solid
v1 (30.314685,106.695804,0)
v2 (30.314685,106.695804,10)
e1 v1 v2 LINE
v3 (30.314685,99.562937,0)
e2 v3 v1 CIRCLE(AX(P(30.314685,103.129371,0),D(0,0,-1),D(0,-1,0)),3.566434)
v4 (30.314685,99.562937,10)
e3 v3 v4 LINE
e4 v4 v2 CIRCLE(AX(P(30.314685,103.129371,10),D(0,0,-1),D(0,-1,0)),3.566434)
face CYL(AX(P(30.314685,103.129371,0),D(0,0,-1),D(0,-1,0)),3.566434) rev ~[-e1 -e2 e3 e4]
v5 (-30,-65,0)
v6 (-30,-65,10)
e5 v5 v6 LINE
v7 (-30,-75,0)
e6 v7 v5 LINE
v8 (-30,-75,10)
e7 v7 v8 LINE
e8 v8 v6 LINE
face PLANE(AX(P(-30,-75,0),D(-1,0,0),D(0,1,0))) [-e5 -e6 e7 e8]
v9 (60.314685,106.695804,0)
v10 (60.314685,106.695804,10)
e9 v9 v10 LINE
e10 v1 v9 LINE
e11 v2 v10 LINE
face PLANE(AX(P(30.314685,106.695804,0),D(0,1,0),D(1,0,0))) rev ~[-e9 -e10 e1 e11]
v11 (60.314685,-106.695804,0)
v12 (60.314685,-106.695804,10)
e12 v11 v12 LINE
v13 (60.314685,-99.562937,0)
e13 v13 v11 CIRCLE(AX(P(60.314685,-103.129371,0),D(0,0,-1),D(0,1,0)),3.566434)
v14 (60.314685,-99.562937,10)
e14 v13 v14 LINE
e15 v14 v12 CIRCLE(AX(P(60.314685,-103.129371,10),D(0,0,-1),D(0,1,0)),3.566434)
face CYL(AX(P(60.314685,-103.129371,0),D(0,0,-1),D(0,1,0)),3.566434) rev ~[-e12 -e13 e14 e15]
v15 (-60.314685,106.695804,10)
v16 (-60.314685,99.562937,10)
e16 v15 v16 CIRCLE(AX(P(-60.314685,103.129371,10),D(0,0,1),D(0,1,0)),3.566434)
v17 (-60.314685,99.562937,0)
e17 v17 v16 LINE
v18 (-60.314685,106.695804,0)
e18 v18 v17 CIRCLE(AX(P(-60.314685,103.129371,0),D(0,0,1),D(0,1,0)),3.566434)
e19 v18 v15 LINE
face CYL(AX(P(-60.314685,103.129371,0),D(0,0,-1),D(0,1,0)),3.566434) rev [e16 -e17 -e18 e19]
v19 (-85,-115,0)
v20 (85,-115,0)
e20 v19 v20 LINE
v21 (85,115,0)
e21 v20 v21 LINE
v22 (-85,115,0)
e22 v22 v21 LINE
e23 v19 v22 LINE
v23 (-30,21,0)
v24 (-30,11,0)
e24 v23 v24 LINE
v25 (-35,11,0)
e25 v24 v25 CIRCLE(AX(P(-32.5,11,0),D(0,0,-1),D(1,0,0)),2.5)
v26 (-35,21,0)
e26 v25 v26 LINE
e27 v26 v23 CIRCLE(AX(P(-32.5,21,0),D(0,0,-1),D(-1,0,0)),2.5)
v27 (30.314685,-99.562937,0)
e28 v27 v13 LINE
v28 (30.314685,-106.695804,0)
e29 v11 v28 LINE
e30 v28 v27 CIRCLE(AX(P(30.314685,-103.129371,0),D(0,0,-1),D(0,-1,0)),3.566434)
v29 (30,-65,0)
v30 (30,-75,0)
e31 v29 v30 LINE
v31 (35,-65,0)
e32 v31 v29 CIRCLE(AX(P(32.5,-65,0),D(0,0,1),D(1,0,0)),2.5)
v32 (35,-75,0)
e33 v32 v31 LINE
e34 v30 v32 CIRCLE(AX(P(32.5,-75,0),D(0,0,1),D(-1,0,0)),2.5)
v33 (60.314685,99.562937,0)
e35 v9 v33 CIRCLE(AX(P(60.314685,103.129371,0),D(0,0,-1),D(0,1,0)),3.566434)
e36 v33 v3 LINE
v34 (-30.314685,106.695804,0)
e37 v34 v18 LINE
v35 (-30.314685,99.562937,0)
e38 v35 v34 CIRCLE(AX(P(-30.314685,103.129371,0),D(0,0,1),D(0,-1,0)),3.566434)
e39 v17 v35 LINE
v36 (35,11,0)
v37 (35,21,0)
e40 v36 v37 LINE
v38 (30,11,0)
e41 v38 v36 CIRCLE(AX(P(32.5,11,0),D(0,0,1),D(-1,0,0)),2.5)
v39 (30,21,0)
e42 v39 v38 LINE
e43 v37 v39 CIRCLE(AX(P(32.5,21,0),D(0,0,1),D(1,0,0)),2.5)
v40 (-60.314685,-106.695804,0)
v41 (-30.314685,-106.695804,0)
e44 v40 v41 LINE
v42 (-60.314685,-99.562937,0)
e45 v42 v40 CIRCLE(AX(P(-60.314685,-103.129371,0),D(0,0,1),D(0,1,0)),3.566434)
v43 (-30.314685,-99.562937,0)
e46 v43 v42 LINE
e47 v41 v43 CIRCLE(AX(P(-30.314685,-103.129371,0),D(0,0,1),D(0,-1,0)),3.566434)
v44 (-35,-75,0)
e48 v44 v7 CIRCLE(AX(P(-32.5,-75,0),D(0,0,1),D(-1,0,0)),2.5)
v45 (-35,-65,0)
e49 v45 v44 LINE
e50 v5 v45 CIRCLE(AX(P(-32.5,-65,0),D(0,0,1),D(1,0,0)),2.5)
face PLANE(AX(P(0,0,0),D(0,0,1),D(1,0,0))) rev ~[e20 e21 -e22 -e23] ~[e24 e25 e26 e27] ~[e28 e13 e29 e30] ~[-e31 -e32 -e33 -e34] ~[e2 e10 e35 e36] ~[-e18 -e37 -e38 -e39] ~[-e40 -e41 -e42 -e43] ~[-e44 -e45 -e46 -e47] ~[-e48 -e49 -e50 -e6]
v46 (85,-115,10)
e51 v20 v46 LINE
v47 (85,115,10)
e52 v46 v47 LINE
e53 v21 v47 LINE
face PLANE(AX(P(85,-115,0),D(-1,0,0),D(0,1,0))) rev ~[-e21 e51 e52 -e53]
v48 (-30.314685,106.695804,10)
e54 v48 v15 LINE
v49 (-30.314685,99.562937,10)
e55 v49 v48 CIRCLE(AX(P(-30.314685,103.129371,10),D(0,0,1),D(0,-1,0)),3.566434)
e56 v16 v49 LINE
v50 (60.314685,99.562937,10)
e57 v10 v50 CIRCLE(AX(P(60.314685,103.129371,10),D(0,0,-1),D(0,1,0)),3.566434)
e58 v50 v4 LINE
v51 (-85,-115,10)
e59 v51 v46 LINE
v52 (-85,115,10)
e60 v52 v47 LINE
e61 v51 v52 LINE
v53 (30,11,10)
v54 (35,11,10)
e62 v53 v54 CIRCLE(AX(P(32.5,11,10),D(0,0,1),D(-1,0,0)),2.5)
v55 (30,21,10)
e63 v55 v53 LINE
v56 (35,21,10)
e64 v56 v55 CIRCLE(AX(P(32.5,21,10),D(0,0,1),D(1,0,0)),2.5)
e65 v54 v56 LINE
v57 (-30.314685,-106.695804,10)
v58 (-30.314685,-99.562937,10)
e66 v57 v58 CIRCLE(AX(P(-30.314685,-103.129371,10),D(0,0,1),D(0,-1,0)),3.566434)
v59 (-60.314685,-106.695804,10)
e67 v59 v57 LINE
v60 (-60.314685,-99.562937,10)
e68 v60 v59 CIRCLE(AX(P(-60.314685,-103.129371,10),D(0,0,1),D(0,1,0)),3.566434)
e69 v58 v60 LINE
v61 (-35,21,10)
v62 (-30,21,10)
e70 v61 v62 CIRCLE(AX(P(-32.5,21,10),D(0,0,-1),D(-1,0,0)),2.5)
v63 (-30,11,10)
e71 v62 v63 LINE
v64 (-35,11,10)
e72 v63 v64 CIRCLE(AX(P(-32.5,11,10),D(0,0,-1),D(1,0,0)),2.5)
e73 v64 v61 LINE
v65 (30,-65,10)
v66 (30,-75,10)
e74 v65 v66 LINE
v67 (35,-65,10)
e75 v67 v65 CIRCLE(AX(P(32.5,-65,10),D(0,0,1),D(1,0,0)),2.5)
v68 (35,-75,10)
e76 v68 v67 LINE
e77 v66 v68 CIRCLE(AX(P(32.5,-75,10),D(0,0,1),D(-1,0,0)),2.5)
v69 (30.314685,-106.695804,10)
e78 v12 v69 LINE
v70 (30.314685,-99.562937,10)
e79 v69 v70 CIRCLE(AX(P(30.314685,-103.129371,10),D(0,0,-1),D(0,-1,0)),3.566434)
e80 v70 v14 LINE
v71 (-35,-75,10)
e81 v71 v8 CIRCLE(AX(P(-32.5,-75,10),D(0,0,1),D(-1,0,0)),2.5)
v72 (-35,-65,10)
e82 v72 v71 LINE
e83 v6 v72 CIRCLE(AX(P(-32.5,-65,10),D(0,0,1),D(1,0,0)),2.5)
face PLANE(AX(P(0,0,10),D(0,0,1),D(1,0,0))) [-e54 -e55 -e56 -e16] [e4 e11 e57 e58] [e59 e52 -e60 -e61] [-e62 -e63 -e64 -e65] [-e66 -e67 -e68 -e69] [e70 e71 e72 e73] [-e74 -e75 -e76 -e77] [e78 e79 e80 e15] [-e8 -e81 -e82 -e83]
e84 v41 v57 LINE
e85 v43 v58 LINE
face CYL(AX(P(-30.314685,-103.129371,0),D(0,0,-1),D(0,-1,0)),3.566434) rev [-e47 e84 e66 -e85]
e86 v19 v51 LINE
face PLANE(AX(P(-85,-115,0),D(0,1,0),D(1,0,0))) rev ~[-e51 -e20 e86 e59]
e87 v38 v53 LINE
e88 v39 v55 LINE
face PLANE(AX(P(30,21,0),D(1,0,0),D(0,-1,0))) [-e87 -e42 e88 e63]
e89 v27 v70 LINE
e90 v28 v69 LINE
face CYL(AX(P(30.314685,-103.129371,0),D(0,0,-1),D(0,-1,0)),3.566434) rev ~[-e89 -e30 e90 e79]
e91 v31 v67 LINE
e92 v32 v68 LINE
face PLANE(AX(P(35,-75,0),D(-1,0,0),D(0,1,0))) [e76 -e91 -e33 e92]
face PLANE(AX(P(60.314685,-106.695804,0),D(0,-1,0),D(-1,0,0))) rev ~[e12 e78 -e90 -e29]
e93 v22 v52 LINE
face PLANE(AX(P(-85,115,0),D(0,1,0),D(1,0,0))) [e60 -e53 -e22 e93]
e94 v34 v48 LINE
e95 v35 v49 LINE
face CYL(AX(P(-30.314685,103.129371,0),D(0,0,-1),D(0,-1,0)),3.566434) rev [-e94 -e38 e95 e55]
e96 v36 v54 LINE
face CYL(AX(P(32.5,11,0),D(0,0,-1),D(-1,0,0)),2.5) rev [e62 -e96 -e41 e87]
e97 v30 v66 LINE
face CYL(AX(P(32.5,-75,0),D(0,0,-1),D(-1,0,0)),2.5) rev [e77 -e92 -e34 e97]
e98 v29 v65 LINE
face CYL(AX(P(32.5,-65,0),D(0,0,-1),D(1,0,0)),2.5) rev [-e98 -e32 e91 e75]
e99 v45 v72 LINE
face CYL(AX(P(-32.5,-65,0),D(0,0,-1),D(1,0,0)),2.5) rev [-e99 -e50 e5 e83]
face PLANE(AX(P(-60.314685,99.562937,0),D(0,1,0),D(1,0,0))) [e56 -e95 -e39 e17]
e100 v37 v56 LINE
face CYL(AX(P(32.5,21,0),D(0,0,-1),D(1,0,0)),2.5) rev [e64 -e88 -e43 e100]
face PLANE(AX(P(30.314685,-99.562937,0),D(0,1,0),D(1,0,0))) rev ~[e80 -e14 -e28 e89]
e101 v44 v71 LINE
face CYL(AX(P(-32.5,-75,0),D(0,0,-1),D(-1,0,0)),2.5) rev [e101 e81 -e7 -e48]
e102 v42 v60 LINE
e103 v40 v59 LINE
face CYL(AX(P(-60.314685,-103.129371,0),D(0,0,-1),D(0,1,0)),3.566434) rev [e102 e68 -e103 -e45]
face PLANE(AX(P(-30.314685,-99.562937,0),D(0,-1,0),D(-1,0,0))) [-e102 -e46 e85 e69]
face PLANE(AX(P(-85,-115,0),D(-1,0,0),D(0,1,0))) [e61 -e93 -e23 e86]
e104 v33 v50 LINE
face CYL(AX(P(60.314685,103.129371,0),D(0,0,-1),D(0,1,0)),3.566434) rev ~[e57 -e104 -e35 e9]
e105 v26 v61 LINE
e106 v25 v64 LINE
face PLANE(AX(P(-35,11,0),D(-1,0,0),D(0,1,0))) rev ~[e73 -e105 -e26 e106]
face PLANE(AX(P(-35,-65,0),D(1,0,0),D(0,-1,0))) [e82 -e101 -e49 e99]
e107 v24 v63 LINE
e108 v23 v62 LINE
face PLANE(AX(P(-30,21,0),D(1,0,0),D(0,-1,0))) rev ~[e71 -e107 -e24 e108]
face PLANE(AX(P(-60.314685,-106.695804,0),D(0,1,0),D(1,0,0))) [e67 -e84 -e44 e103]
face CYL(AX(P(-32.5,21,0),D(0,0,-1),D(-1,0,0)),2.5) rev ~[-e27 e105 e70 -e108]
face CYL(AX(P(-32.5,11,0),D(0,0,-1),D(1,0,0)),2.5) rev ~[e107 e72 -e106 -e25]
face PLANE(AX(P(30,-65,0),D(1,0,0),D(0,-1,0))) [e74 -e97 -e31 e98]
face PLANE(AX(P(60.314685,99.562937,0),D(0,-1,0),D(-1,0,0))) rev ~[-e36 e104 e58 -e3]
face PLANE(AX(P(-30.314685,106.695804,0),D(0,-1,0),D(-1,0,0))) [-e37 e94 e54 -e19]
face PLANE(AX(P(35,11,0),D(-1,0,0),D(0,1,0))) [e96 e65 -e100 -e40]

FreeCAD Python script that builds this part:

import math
import FreeCAD as App
import Part
import Sketcher

V = App.Vector


def add_polygon(sketch, points):
    """Adds a closed chain of lines whose ends are joined by coincident constraints."""
    first, n = sketch.GeometryCount, len(points)
    for a, b in zip(points, points[1:] + points[:1]):
        sketch.addGeometry(Part.LineSegment(App.Vector(*a, 0), App.Vector(*b, 0)), False)
    for i in range(n):
        sketch.addConstraint(Sketcher.Constraint("Coincident", first + i, 2, first + (i + 1) % n, 1))

doc = App.newDocument("Part")
body = doc.addObject("PartDesign::Body", "Body")

# Sketch on XY plane
sketch1 = body.newObject("Sketcher::SketchObject", "Sketch")
sketch1.AttachmentSupport = (doc.getObject("XY_Plane"), [""])
sketch1.MapMode = "FlatFace"
add_polygon(sketch1, [(-85, 115), (-85, -115), (85, -115), (85, 115)])  # lines 0-3
sketch1.addGeometry(Part.LineSegment(V(-60.3, -99.6, 0), V(-30.3, -99.6, 0)), False)  # 4
sketch1.addGeometry(Part.ArcOfCircle(Part.Circle(V(-30.3, -103.1, 0), V(0, 0, 1), 3.6), math.radians(-90), math.radians(90)), False)  # 5
sketch1.addGeometry(Part.LineSegment(V(-30.3, -106.7, 0), V(-60.3, -106.7, 0)), False)  # 6
sketch1.addGeometry(Part.ArcOfCircle(Part.Circle(V(-60.3, -103.1, 0), V(0, 0, 1), 3.6), math.radians(90), math.radians(270)), False)  # 7
sketch1.addGeometry(Part.LineSegment(V(-30, -65, 0), V(-30, -75, 0)), False)  # 8
sketch1.addGeometry(Part.ArcOfCircle(Part.Circle(V(-32.5, -75, 0), V(0, 0, 1), 2.5), math.radians(180), math.radians(360)), False)  # 9
sketch1.addGeometry(Part.LineSegment(V(-35, -75, 0), V(-35, -65, 0)), False)  # 10
sketch1.addGeometry(Part.ArcOfCircle(Part.Circle(V(-32.5, -65, 0), V(0, 0, 1), 2.5), math.radians(0), math.radians(180)), False)  # 11
sketch1.addGeometry(Part.ArcOfCircle(Part.Circle(V(30.3, -103.1, 0), V(0, 0, 1), 3.6), math.radians(90), math.radians(270)), False)  # 12
sketch1.addGeometry(Part.LineSegment(V(30.3, -99.6, 0), V(60.3, -99.6, 0)), False)  # 13
sketch1.addGeometry(Part.ArcOfCircle(Part.Circle(V(60.3, -103.1, 0), V(0, 0, 1), 3.6), math.radians(-90), math.radians(90)), False)  # 14
sketch1.addGeometry(Part.LineSegment(V(60.3, -106.7, 0), V(30.3, -106.7, 0)), False)  # 15
sketch1.addGeometry(Part.LineSegment(V(35, -65, 0), V(35, -75, 0)), False)  # 16
sketch1.addGeometry(Part.ArcOfCircle(Part.Circle(V(32.5, -75, 0), V(0, 0, 1), 2.5), math.radians(180), math.radians(360)), False)  # 17
sketch1.addGeometry(Part.LineSegment(V(30, -75, 0), V(30, -65, 0)), False)  # 18
sketch1.addGeometry(Part.ArcOfCircle(Part.Circle(V(32.5, -65, 0), V(0, 0, 1), 2.5), math.radians(0), math.radians(180)), False)  # 19
sketch1.addGeometry(Part.ArcOfCircle(Part.Circle(V(-32.5, 21, 0), V(0, 0, 1), 2.5), math.radians(0), math.radians(180)), False)  # 20
sketch1.addGeometry(Part.LineSegment(V(-30, 21, 0), V(-30, 11, 0)), False)  # 21
sketch1.addGeometry(Part.ArcOfCircle(Part.Circle(V(-32.5, 11, 0), V(0, 0, 1), 2.5), math.radians(180), math.radians(360)), False)  # 22
sketch1.addGeometry(Part.LineSegment(V(-35, 11, 0), V(-35, 21, 0)), False)  # 23
sketch1.addGeometry(Part.LineSegment(V(-60.3, 106.7, 0), V(-30.3, 106.7, 0)), False)  # 24
sketch1.addGeometry(Part.ArcOfCircle(Part.Circle(V(-30.3, 103.1, 0), V(0, 0, 1), 3.6), math.radians(-90), math.radians(90)), False)  # 25
sketch1.addGeometry(Part.LineSegment(V(-30.3, 99.6, 0), V(-60.3, 99.6, 0)), False)  # 26
sketch1.addGeometry(Part.ArcOfCircle(Part.Circle(V(-60.3, 103.1, 0), V(0, 0, 1), 3.6), math.radians(90), math.radians(270)), False)  # 27
sketch1.addGeometry(Part.LineSegment(V(30, 11, 0), V(30, 21, 0)), False)  # 28
sketch1.addGeometry(Part.ArcOfCircle(Part.Circle(V(32.5, 21, 0), V(0, 0, 1), 2.5), math.radians(0), math.radians(180)), False)  # 29
sketch1.addGeometry(Part.LineSegment(V(35, 21, 0), V(35, 11, 0)), False)  # 30
sketch1.addGeometry(Part.ArcOfCircle(Part.Circle(V(32.5, 11, 0), V(0, 0, 1), 2.5), math.radians(180), math.radians(360)), False)  # 31
sketch1.addGeometry(Part.ArcOfCircle(Part.Circle(V(30.3, 103.1, 0), V(0, 0, 1), 3.6), math.radians(90), math.radians(270)), False)  # 32
sketch1.addGeometry(Part.LineSegment(V(30.3, 106.7, 0), V(60.3, 106.7, 0)), False)  # 33
sketch1.addGeometry(Part.ArcOfCircle(Part.Circle(V(60.3, 103.1, 0), V(0, 0, 1), 3.6), math.radians(-90), math.radians(90)), False)  # 34
sketch1.addGeometry(Part.LineSegment(V(60.3, 99.6, 0), V(30.3, 99.6, 0)), False)  # 35
sketch1.addConstraint(Sketcher.Constraint("Tangent", 4, 2, 5, 2))
sketch1.addConstraint(Sketcher.Constraint("Tangent", 5, 1, 6, 1))
sketch1.addConstraint(Sketcher.Constraint("Tangent", 6, 2, 7, 2))
sketch1.addConstraint(Sketcher.Constraint("Tangent", 7, 1, 4, 1))
sketch1.addConstraint(Sketcher.Constraint("Tangent", 8, 2, 9, 2))
sketch1.addConstraint(Sketcher.Constraint("Tangent", 9, 1, 10, 1))
sketch1.addConstraint(Sketcher.Constraint("Tangent", 10, 2, 11, 2))
sketch1.addConstraint(Sketcher.Constraint("Tangent", 11, 1, 8, 1))
sketch1.addConstraint(Sketcher.Constraint("Tangent", 12, 1, 13, 1))
sketch1.addConstraint(Sketcher.Constraint("Tangent", 13, 2, 14, 2))
sketch1.addConstraint(Sketcher.Constraint("Tangent", 14, 1, 15, 1))
sketch1.addConstraint(Sketcher.Constraint("Tangent", 15, 2, 12, 2))
sketch1.addConstraint(Sketcher.Constraint("Tangent", 16, 2, 17, 2))
sketch1.addConstraint(Sketcher.Constraint("Tangent", 17, 1, 18, 1))
sketch1.addConstraint(Sketcher.Constraint("Tangent", 18, 2, 19, 2))
sketch1.addConstraint(Sketcher.Constraint("Tangent", 19, 1, 16, 1))
sketch1.addConstraint(Sketcher.Constraint("Tangent", 20, 1, 21, 1))
sketch1.addConstraint(Sketcher.Constraint("Tangent", 21, 2, 22, 2))
sketch1.addConstraint(Sketcher.Constraint("Tangent", 22, 1, 23, 1))
sketch1.addConstraint(Sketcher.Constraint("Tangent", 23, 2, 20, 2))
sketch1.addConstraint(Sketcher.Constraint("Tangent", 24, 2, 25, 2))
sketch1.addConstraint(Sketcher.Constraint("Tangent", 25, 1, 26, 1))
sketch1.addConstraint(Sketcher.Constraint("Tangent", 26, 2, 27, 2))
sketch1.addConstraint(Sketcher.Constraint("Tangent", 27, 1, 24, 1))
sketch1.addConstraint(Sketcher.Constraint("Tangent", 28, 2, 29, 2))
sketch1.addConstraint(Sketcher.Constraint("Tangent", 29, 1, 30, 1))
sketch1.addConstraint(Sketcher.Constraint("Tangent", 30, 2, 31, 2))
sketch1.addConstraint(Sketcher.Constraint("Tangent", 31, 1, 28, 1))
sketch1.addConstraint(Sketcher.Constraint("Tangent", 32, 1, 33, 1))
sketch1.addConstraint(Sketcher.Constraint("Tangent", 33, 2, 34, 2))
sketch1.addConstraint(Sketcher.Constraint("Tangent", 34, 1, 35, 1))
sketch1.addConstraint(Sketcher.Constraint("Tangent", 35, 2, 32, 2))
sketch1.addConstraint(Sketcher.Constraint("Vertical", 0))
sketch1.addConstraint(Sketcher.Constraint("Horizontal", 1))
sketch1.addConstraint(Sketcher.Constraint("Vertical", 2))
sketch1.addConstraint(Sketcher.Constraint("Horizontal", 3))
sketch1.addConstraint(Sketcher.Constraint("Horizontal", 4))
sketch1.addConstraint(Sketcher.Constraint("Horizontal", 6))
sketch1.addConstraint(Sketcher.Constraint("Vertical", 8))
sketch1.addConstraint(Sketcher.Constraint("Vertical", 10))
sketch1.addConstraint(Sketcher.Constraint("Horizontal", 13))
sketch1.addConstraint(Sketcher.Constraint("Horizontal", 15))
sketch1.addConstraint(Sketcher.Constraint("Vertical", 16))
sketch1.addConstraint(Sketcher.Constraint("Vertical", 18))
sketch1.addConstraint(Sketcher.Constraint("Vertical", 21))
sketch1.addConstraint(Sketcher.Constraint("Vertical", 23))
sketch1.addConstraint(Sketcher.Constraint("Horizontal", 24))
sketch1.addConstraint(Sketcher.Constraint("Horizontal", 26))
sketch1.addConstraint(Sketcher.Constraint("Vertical", 28))
sketch1.addConstraint(Sketcher.Constraint("Vertical", 30))
sketch1.addConstraint(Sketcher.Constraint("Horizontal", 33))
sketch1.addConstraint(Sketcher.Constraint("Horizontal", 35))
sketch1.addConstraint(Sketcher.Constraint("Equal", 7, 12))
sketch1.addConstraint(Sketcher.Constraint("Equal", 11, 17))
sketch1.addConstraint(Sketcher.Constraint("Equal", 19, 20))
sketch1.addConstraint(Sketcher.Constraint("Equal", 14, 25))
sketch1.addConstraint(Sketcher.Constraint("Equal", 22, 29))
sketch1.addConstraint(Sketcher.Constraint("Equal", 27, 32))
sketch1.addConstraint(Sketcher.Constraint("Symmetric", 12, 3, 25, 3, -1, 1))
sketch1.addConstraint(Sketcher.Constraint("Symmetric", 5, 3, 32, 3, -1, 1))
sketch1.addConstraint(Sketcher.Constraint("Symmetric", 0, 2, 2, 2, -1, 1))
sketch1.addConstraint(Sketcher.Constraint("Symmetric", 5, 3, 12, 3, -2))
sketch1.addConstraint(Sketcher.Constraint("Symmetric", 9, 3, 17, 3, -2))
sketch1.addConstraint(Sketcher.Constraint("Symmetric", 20, 3, 29, 3, -2))
sketch1.addConstraint(Sketcher.Constraint("Horizontal", 11, 3, 19, 3))
sketch1.addConstraint(Sketcher.Constraint("Horizontal", 22, 3, 31, 3))
sketch1.addConstraint(Sketcher.Constraint("Vertical", 11, 3, 20, 3))
sketch1.addConstraint(Sketcher.Constraint("Vertical", 7, 3, 27, 3))
sketch1.addConstraint(Sketcher.Constraint("Vertical", 14, 3, 34, 3))
sketch1.addConstraint(Sketcher.Constraint("Equal", 6, 13))
sketch1.addConstraint(Sketcher.Constraint("Equal", 18, 21))
sketch1.addConstraint(Sketcher.Constraint("Radius", 9, 2.5))
sketch1.addConstraint(Sketcher.Constraint("DistanceX", 1, 1, 1, 2, 170.0))
sketch1.addConstraint(Sketcher.Constraint("DistanceX", 4, 1, 4, 2, 30.0))
sketch1.addConstraint(Sketcher.Constraint("DistanceY", 0, 2, 0, 1, 230.0))
sketch1.addConstraint(Sketcher.Constraint("DistanceY", 8, 2, 8, 1, 10.0))
sketch1.addConstraint(Sketcher.Constraint("DistanceY", 9, 3, -1, 1, 75.0))
sketch1.addConstraint(Sketcher.Constraint("DistanceY", -1, 1, 20, 3, 21.0))
sketch1.addConstraint(Sketcher.Constraint("DistanceX", 8, 2, -1, 1, 30.0))
sketch1.addConstraint(Sketcher.Constraint("Radius", 5, 3.566434))
sketch1.addConstraint(Sketcher.Constraint("DistanceY", 5, 3, -1, 1, 103.129371))
sketch1.addConstraint(Sketcher.Constraint("DistanceX", 5, 3, 12, 3, 60.629371))
pad1 = body.newObject("PartDesign::Pad", "Pad")
pad1.Profile = sketch1
pad1.Length = 10

doc.recompute()
